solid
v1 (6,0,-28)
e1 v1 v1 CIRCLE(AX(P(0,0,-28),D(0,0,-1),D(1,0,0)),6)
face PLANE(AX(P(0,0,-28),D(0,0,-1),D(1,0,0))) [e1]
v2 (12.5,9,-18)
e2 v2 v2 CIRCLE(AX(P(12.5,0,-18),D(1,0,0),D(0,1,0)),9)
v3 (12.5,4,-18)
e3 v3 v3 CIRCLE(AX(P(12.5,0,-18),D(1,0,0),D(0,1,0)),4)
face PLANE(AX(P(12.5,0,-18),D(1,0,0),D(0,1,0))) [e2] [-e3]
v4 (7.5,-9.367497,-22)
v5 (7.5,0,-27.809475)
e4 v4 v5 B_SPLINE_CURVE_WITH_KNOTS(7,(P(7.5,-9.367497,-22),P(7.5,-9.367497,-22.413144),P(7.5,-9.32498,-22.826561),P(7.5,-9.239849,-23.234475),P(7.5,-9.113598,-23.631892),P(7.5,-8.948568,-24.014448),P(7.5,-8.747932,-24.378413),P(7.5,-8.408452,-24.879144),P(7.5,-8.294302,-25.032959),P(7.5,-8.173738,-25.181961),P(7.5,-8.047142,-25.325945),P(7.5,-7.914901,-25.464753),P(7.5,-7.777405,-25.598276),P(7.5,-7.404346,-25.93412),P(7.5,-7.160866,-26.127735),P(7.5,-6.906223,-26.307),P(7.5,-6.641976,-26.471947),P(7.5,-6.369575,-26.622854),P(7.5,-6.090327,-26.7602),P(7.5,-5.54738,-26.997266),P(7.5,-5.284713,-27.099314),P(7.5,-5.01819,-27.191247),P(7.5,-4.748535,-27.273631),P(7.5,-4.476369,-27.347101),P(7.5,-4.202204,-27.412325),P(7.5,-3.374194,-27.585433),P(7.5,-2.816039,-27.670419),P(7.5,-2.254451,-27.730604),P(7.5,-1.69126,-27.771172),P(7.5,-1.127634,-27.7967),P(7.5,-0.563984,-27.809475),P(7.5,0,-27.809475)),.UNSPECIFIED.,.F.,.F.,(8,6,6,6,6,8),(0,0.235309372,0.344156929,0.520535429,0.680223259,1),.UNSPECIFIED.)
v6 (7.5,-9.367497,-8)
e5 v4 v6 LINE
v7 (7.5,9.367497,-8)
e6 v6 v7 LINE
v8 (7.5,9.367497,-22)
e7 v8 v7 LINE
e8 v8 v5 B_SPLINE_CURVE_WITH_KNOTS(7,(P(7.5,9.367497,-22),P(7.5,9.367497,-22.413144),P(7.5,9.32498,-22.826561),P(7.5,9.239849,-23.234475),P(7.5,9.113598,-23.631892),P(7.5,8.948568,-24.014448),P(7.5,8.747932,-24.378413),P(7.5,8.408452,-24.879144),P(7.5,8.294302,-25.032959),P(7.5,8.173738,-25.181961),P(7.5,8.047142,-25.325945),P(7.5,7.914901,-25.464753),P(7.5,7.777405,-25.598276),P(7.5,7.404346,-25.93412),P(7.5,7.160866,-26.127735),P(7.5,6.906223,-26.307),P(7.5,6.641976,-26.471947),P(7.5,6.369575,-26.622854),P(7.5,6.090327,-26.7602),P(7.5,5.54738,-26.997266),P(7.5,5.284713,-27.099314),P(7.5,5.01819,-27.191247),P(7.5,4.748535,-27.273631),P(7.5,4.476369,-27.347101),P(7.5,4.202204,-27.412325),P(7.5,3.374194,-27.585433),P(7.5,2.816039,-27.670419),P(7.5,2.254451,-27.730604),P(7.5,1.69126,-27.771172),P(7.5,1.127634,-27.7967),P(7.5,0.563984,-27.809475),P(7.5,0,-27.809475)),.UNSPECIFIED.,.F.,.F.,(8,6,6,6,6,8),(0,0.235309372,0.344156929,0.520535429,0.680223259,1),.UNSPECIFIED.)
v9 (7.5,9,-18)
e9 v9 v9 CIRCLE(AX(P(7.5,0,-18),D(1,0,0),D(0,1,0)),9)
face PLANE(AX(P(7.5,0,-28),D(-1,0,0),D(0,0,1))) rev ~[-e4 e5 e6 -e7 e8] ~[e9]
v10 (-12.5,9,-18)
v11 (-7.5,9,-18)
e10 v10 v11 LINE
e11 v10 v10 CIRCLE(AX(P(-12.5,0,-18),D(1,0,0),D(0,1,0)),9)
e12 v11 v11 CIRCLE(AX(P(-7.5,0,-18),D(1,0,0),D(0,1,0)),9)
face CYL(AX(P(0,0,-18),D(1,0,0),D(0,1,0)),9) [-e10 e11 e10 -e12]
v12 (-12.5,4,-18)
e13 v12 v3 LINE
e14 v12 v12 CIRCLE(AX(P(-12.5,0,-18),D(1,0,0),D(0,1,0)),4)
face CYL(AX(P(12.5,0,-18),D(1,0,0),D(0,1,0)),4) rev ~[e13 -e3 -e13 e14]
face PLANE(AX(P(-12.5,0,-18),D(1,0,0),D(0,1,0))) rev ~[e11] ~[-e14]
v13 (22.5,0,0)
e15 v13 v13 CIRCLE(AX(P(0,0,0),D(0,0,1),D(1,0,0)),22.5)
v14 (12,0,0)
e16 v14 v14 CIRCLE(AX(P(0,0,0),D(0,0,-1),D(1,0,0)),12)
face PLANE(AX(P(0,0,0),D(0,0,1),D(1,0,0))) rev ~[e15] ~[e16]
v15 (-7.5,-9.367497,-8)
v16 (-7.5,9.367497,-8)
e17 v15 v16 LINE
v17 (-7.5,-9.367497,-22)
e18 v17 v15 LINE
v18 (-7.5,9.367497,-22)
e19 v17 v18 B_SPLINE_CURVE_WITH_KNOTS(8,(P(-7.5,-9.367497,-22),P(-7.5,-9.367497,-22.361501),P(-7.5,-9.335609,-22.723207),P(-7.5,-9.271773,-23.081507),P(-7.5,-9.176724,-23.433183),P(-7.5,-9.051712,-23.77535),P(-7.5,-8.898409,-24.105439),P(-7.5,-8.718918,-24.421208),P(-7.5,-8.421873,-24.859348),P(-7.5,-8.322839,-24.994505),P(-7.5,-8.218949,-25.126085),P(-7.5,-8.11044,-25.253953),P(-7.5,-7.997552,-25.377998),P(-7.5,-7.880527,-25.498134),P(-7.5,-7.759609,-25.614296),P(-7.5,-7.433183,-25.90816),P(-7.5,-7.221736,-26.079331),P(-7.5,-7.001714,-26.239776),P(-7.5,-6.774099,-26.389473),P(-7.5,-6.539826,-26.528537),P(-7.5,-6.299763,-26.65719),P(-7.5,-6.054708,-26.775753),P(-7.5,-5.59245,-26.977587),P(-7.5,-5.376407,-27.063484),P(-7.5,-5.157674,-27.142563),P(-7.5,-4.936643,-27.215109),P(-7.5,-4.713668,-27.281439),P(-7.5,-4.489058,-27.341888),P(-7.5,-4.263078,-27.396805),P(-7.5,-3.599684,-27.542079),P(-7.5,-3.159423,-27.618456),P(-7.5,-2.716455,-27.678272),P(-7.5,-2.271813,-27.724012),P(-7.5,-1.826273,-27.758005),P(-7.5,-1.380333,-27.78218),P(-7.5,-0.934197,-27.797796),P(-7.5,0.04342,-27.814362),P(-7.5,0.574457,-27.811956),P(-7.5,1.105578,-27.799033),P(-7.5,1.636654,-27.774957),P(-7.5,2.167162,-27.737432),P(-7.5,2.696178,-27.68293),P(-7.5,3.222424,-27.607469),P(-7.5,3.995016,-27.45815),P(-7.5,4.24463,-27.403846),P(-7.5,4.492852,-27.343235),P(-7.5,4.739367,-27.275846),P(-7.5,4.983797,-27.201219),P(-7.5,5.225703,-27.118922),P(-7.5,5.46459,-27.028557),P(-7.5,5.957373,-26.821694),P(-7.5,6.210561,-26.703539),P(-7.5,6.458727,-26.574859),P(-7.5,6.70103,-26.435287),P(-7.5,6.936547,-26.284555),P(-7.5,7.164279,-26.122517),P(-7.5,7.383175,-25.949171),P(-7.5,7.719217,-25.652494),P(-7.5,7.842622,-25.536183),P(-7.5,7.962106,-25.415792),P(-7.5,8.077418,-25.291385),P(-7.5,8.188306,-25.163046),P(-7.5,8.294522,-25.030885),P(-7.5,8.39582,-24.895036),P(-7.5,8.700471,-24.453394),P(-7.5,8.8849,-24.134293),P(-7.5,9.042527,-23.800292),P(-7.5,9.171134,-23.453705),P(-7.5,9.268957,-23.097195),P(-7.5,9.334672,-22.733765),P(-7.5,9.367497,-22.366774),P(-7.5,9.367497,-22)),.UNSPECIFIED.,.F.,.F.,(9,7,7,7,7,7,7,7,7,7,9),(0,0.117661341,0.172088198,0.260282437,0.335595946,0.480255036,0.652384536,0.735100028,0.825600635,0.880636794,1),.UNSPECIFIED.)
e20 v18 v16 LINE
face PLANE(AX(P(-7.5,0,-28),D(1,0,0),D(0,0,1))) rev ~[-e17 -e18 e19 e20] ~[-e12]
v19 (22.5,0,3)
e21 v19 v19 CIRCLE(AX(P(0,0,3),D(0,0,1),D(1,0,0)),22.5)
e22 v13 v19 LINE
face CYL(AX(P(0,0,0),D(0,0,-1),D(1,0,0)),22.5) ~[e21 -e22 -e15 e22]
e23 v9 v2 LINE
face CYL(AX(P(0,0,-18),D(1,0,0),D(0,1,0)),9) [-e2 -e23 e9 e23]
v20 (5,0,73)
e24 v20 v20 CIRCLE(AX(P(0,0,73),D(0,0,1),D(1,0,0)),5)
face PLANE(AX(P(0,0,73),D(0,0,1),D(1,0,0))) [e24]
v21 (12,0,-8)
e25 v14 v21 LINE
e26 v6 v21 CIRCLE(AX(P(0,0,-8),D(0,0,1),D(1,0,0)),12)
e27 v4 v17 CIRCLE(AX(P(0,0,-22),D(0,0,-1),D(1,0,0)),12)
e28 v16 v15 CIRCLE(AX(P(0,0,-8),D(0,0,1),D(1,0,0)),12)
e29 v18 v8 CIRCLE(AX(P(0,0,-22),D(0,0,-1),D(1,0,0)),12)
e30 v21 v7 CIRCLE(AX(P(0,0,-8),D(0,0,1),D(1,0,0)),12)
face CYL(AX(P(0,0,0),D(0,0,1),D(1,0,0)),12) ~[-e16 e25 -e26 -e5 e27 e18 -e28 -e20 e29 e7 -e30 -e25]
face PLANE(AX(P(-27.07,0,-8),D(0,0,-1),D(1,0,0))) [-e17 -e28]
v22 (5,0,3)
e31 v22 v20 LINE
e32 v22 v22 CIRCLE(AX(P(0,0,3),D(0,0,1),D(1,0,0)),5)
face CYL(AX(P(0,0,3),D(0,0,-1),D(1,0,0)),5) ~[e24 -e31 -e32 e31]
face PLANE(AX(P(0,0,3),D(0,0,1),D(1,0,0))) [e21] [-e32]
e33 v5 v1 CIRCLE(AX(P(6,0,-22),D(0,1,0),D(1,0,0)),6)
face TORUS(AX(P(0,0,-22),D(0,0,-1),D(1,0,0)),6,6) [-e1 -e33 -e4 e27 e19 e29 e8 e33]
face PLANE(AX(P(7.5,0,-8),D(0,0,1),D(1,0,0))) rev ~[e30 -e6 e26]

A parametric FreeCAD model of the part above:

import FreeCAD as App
import Part
import Sketcher

V = App.Vector
Q = App.Units.Quantity


def edges_at(feature, points):
    """Names of the edges that pass closest to the given points."""
    edges = feature.Shape.Edges
    near = lambda p: min(range(len(edges)), key=lambda i: edges[i].distToShape(Part.Vertex(*p))[0])
    return sorted({f"Edge{near(p) + 1}" for p in points})

doc = App.newDocument("Part")
body = doc.addObject("PartDesign::Body", "Body")

sketch1 = doc.addObject("Sketcher::SketchObject", "Sketch")
body.addObject(sketch1)
sketch1.AttachmentSupport = (doc.XY_Plane, [""])
sketch1.MapMode = "FlatFace"
sketch1.addGeometry(Part.Circle(V(0, 0, 0), V(0, 0, 1), 22), False)
sketch1.addConstraint([
    Sketcher.Constraint("Coincident", 0, 3, -1, 1),
    Sketcher.Constraint("Diameter", 0, Q("45 mm")),
])
pad1 = doc.addObject("PartDesign::Pad", "Pad")
body.addObject(pad1)
pad1.Profile = sketch1
pad1.Length = 3

sketch2 = doc.addObject("Sketcher::SketchObject", "Sketch001")
body.addObject(sketch2)
sketch2.AttachmentSupport = (doc.XY_Plane, [""])
sketch2.MapMode = "FlatFace"
sketch2.AttachmentOffset = App.Placement(V(0, 0, 3), App.Rotation())
sketch2.addGeometry(Part.Circle(V(0, 0, 0), V(0, 0, 1), 5), False)
sketch2.addConstraint([
    Sketcher.Constraint("Coincident", 0, 3, -1, 1),
    Sketcher.Constraint("Diameter", 0, Q("10 mm")),
])
pad2 = doc.addObject("PartDesign::Pad", "Pad001")
body.addObject(pad2)
pad2.Profile = sketch2
pad2.Length = 70

sketch3 = doc.addObject("Sketcher::SketchObject", "Sketch002")
body.addObject(sketch3)
sketch3.AttachmentSupport = (doc.XY_Plane, [""])
sketch3.MapMode = "FlatFace"
sketch3.addGeometry(Part.Circle(V(0, 0, 0), V(0, 0, 1), 12), False)
sketch3.addConstraint([
    Sketcher.Constraint("Coincident", 0, 3, -1, 1),
    Sketcher.Constraint("Diameter", 0, Q("24 mm")),
])
pad3 = doc.addObject("PartDesign::Pad", "Pad002")
body.addObject(pad3)
pad3.Profile = sketch3
pad3.Length = 28
pad3.Reversed = True
doc.recompute()

fillet = doc.addObject("PartDesign::Fillet", "Fillet")
body.addObject(fillet)
fillet.Base = (pad3, edges_at(pad3, [(-12, 0, -28)]))
fillet.Radius = 6

sketch4 = doc.addObject("Sketcher::SketchObject", "Sketch003")
body.addObject(sketch4)
sketch4.AttachmentSupport = (doc.XZ_Plane, [""])
sketch4.MapMode = "FlatFace"
sketch4.addGeometry([
    Part.LineSegment(V(8, -8, 0), V(8, -28, 0)),
    Part.LineSegment(V(8, -28, 0), V(27, -28, 0)),
    Part.LineSegment(V(27, -28, 0), V(27, -8, 0)),
    Part.LineSegment(V(27, -8, 0), V(8, -8, 0)),
    Part.LineSegment(V(-27, -8, 0), V(-27, -28, 0)),
    Part.LineSegment(V(-27, -28, 0), V(-8, -28, 0)),
    Part.LineSegment(V(-8, -28, 0), V(-8, -8, 0)),
    Part.LineSegment(V(-8, -8, 0), V(-27, -8, 0)),
], False)
sketch4.addConstraint([
    Sketcher.Constraint("Coincident", 0, 2, 1, 1),
    Sketcher.Constraint("Coincident", 1, 2, 2, 1),
    Sketcher.Constraint("Coincident", 2, 2, 3, 1),
    Sketcher.Constraint("Coincident", 3, 2, 0, 1),
    Sketcher.Constraint("Coincident", 4, 2, 5, 1),
    Sketcher.Constraint("Coincident", 5, 2, 6, 1),
    Sketcher.Constraint("Coincident", 6, 2, 7, 1),
    Sketcher.Constraint("Coincident", 7, 2, 4, 1),
    Sketcher.Constraint("Vertical", 0),
    Sketcher.Constraint("Horizontal", 1),
    Sketcher.Constraint("Vertical", 2),
    Sketcher.Constraint("Horizontal", 3),
    Sketcher.Constraint("Vertical", 4),
    Sketcher.Constraint("Horizontal", 5),
    Sketcher.Constraint("Vertical", 6),
    Sketcher.Constraint("Horizontal", 7),
    Sketcher.Constraint("Symmetric", 1, 2, 4, 2, -2),
    Sketcher.Constraint("Symmetric", 3, 2, 6, 2, -2),
    Sketcher.Constraint("DistanceY", 0, 2, 0, 1, Q("20 mm")),
    Sketcher.Constraint("DistanceY", 0, 2, -1, 1, Q("28 mm")),
    Sketcher.Constraint("DistanceX", 5, 2, 0, 2, Q("15 mm")),
    Sketcher.Constraint("DistanceX", 1, 1, 1, 2, Q("19.57 mm")),
])
pocket1 = doc.addObject("PartDesign::Pocket", "Pocket")
body.addObject(pocket1)
pocket1.Profile = sketch4
pocket1.Length = 100
pocket1.Midplane = True

sketch5 = doc.addObject("Sketcher::SketchObject", "Sketch004")
body.addObject(sketch5)
sketch5.AttachmentSupport = (doc.YZ_Plane, [""])
sketch5.MapMode = "FlatFace"
sketch5.AttachmentOffset = App.Placement(V(0, 0, 7.5), App.Rotation())
sketch5.addGeometry(Part.Circle(V(0, -18, 0), V(0, 0, 1), 4), False)
sketch5.addConstraint([
    Sketcher.Constraint("PointOnObject", 0, 3, -2),
    Sketcher.Constraint("Diameter", 0, Q("8 mm")),
    Sketcher.Constraint("DistanceY", 0, 3, -1, 1, Q("18 mm")),
])
pocket2 = doc.addObject("PartDesign::Pocket", "Pocket001")
body.addObject(pocket2)
pocket2.Profile = sketch5
pocket2.Type = "ThroughAll"

sketch6 = doc.addObject("Sketcher::SketchObject", "Sketch005")
body.addObject(sketch6)
sketch6.AttachmentSupport = (doc.YZ_Plane, [""])
sketch6.MapMode = "FlatFace"
sketch6.addGeometry(Part.Circle(V(0, -18, 0), V(0, 0, 1), 9), False)
sketch6.addConstraint([
    Sketcher.Constraint("PointOnObject", 0, 3, -2),
    Sketcher.Constraint("Diameter", 0, Q("18 mm")),
    Sketcher.Constraint("DistanceY", 0, 3, -1, 1, Q("18 mm")),
])
pad4 = doc.addObject("PartDesign::Pad", "Pad003")
body.addObject(pad4)
pad4.Profile = sketch6
pad4.Length = 25
pad4.Midplane = True

sketch7 = doc.addObject("Sketcher::SketchObject", "Sketch006")
body.addObject(sketch7)
sketch7.AttachmentSupport = (doc.YZ_Plane, [""])
sketch7.MapMode = "FlatFace"
sketch7.AttachmentOffset = App.Placement(V(0, 0, 12.5), App.Rotation())
sketch7.addGeometry(Part.Circle(V(0, -18, 0), V(0, 0, 1), 4), False)
sketch7.addConstraint([
    Sketcher.Constraint("PointOnObject", 0, 3, -2),
    Sketcher.Constraint("Diameter", 0, Q("8 mm")),
    Sketcher.Constraint("DistanceY", 0, 3, -1, 1, Q("18 mm")),
])
pocket3 = doc.addObject("PartDesign::Pocket", "Pocket002")
body.addObject(pocket3)
pocket3.Profile = sketch7
pocket3.Length = 100
pocket3.Midplane = True

doc.recompute()
